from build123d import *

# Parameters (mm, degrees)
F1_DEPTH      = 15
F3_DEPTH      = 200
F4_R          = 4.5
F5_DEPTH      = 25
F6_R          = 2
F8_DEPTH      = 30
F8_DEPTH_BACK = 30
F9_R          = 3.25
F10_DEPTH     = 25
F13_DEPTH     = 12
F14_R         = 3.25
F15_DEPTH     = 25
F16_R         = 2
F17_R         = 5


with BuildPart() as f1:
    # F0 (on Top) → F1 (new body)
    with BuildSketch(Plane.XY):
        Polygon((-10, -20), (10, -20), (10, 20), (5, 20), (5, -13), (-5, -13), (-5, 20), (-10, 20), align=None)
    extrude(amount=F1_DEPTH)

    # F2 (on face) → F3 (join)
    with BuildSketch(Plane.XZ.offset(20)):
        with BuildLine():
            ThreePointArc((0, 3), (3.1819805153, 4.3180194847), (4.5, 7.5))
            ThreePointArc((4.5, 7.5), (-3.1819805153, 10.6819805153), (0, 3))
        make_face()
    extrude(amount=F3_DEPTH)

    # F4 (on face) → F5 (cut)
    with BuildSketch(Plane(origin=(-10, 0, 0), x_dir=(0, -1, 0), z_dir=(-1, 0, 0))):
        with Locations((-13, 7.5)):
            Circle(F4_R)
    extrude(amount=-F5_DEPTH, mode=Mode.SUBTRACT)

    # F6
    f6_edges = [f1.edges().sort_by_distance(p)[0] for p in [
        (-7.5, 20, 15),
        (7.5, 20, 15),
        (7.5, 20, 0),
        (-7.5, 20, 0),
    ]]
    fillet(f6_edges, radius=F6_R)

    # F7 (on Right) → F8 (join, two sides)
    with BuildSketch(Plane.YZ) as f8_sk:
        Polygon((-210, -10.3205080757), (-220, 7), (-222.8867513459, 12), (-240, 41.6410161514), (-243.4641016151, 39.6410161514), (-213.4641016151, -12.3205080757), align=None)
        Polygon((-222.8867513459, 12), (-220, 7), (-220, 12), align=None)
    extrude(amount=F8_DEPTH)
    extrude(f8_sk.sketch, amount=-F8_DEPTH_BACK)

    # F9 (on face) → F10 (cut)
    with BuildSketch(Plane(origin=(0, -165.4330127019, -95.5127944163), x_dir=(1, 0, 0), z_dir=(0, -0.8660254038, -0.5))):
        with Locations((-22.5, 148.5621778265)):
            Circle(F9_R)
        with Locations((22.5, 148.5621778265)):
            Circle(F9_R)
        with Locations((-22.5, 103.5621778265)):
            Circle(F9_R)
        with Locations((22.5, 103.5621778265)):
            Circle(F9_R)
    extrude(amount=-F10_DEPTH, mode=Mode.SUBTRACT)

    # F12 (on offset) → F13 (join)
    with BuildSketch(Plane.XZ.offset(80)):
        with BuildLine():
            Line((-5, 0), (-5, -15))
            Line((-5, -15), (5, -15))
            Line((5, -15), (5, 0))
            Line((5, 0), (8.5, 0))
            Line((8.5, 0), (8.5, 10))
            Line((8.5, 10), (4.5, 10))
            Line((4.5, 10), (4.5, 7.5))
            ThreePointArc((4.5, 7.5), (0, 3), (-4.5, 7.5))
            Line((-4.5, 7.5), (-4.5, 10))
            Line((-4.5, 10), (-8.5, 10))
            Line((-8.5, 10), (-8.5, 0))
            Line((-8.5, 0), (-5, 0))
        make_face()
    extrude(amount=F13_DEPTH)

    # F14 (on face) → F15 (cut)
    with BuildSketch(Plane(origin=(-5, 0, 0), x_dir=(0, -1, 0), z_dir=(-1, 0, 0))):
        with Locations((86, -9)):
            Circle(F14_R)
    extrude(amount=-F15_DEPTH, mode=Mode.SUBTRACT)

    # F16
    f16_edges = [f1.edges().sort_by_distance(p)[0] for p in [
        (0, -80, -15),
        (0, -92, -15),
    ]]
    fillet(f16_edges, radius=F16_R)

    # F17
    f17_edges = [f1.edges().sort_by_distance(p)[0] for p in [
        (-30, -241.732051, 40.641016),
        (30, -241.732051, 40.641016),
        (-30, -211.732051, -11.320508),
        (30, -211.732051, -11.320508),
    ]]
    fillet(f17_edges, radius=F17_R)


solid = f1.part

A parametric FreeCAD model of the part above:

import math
import FreeCAD as App
import Part
import Sketcher
from FreeCAD import Vector
Q = App.Units.Quantity


def edges_at(feature, points):
    """Names of the edges that pass closest to the given points."""
    edges = feature.Shape.Edges
    near = lambda p: min(range(len(edges)), key=lambda i: edges[i].distToShape(Part.Vertex(*p))[0])
    return sorted({f"Edge{near(p) + 1}" for p in points})


def add_polygon(sketch, points):
    """Adds a closed chain of lines whose ends are joined by coincident constraints."""
    first, n = sketch.GeometryCount, len(points)
    for a, b in zip(points, points[1:] + points[:1]):
        sketch.addGeometry(Part.LineSegment(App.Vector(*a, 0), App.Vector(*b, 0)), False)
    for i in range(n):
        sketch.addConstraint(Sketcher.Constraint("Coincident", first + i, 2, first + (i + 1) % n, 1))

doc = App.newDocument("Part")
body = doc.addObject("PartDesign::Body", "Body")

# Sketch on XY plane
sketch1 = body.newObject("Sketcher::SketchObject", "Sketch")
sketch1.AttachmentSupport = (doc.getObject("XY_Plane"), [""])
sketch1.MapMode = "FlatFace"
add_polygon(sketch1, [(-10, -20), (10, -20), (10, 20), (5, 20), (5, -13), (-5, -13), (-5, 20), (-10, 20)])  # lines 0-7
sketch1.addConstraint(Sketcher.Constraint("Horizontal", 0))
sketch1.addConstraint(Sketcher.Constraint("Vertical", 1))
sketch1.addConstraint(Sketcher.Constraint("Horizontal", 2))
sketch1.addConstraint(Sketcher.Constraint("Vertical", 3))
sketch1.addConstraint(Sketcher.Constraint("Horizontal", 4))
sketch1.addConstraint(Sketcher.Constraint("Vertical", 5))
sketch1.addConstraint(Sketcher.Constraint("Horizontal", 6))
sketch1.addConstraint(Sketcher.Constraint("Vertical", 7))
sketch1.addConstraint(Sketcher.Constraint("Symmetric", 0, 2, 6, 2, -1, 1))
sketch1.addConstraint(Sketcher.Constraint("Symmetric", 2, 2, 5, 2, -2))
sketch1.addConstraint(Sketcher.Constraint("DistanceX", 0, 1, 0, 2, 20.0))
sketch1.addConstraint(Sketcher.Constraint("DistanceX", 2, 2, 2, 1, 5.0))
sketch1.addConstraint(Sketcher.Constraint("DistanceY", 1, 1, 1, 2, 40.0))
sketch1.addConstraint(Sketcher.Constraint("DistanceY", 3, 2, 3, 1, 33.0))
pad1 = body.newObject("PartDesign::Pad", "Pad")
pad1.Profile = sketch1
pad1.Length = 15

# Sketch on XZ plane
sketch2 = body.newObject("Sketcher::SketchObject", "Sketch001")
sketch2.AttachmentSupport = (doc.getObject("XZ_Plane"), [""])
sketch2.MapMode = "FlatFace"
sketch2.AttachmentOffset = App.Placement(Vector(0, 0, 20), App.Rotation())
sketch2.addGeometry(Part.ArcOfCircle(Part.Circle(Vector(0, 7.5, 0), Vector(0, 0, 1), 4.5), math.radians(-90), math.radians(0)), False)
sketch2.addGeometry(Part.ArcOfCircle(Part.Circle(Vector(0, 7.5, 0), Vector(0, 0, 1), 4.5), math.radians(0), math.radians(270)), False)
sketch2.addConstraint(Sketcher.Constraint("Tangent", 0, 1, 1, 2))
sketch2.addConstraint(Sketcher.Constraint("Coincident", 1, 1, 0, 2))
sketch2.addConstraint(Sketcher.Constraint("PointOnObject", 0, 3, -2))
sketch2.addConstraint(Sketcher.Constraint("PointOnObject", 0, 1, -2))
sketch2.addConstraint(Sketcher.Constraint("Horizontal", 0, 3, 1, 1))
sketch2.addConstraint(Sketcher.Constraint("Radius", 0, 4.5))
sketch2.addConstraint(Sketcher.Constraint("DistanceY", -1, 1, 0, 1, 3.0))
pad2 = body.newObject("PartDesign::Pad", "Pad001")
pad2.Profile = sketch2
pad2.Length = 200

# Sketch on YZ plane
sketch3 = body.newObject("Sketcher::SketchObject", "Sketch002")
sketch3.AttachmentSupport = (doc.getObject("YZ_Plane"), [""])
sketch3.MapMode = "FlatFace"
sketch3.AttachmentOffset = App.Placement(Vector(0, 0, -10), App.Rotation())
sketch3.addGeometry(Part.Circle(Vector(13, 7.5, 0), Vector(0, 0, 1), 4.5), False)
sketch3.addConstraint(Sketcher.Constraint("Diameter", 0, 9.0))
sketch3.addConstraint(Sketcher.Constraint("DistanceX", -1, 1, 0, 3, 13.0))
sketch3.addConstraint(Sketcher.Constraint("DistanceY", -1, 1, 0, 3, 7.5))
pocket1 = body.newObject("PartDesign::Pocket", "Pocket")
pocket1.Profile = sketch3
pocket1.Length = 25
pocket1.Reversed = True
doc.recompute()

fillet = body.newObject("PartDesign::Fillet", "Fillet")
fillet.Base = (pocket1, edges_at(pocket1, [
    (-7.5, 20, 15),
    (7.5, 20, 15),
    (7.5, 20, 0),
    (-7.5, 20, 0),
]))
fillet.Radius = 2

# Sketch on YZ plane
sketch4 = body.newObject("Sketcher::SketchObject", "Sketch003")
sketch4.AttachmentSupport = (doc.getObject("YZ_Plane"), [""])
sketch4.MapMode = "FlatFace"
add_polygon(sketch4, [(-210, -10.3), (-220, 7), (-220, 12), (-222.9, 12), (-240, 41.6), (-243.5, 39.6), (-213.5, -12.3)])  # lines 0-6
sketch4.addConstraint(Sketcher.Constraint("Vertical", 1))
sketch4.addConstraint(Sketcher.Constraint("Horizontal", 2))
sketch4.addConstraint(Sketcher.Constraint("Parallel", 0, 3))
sketch4.addConstraint(Sketcher.Constraint("Perpendicular", 3, 4))
sketch4.addConstraint(Sketcher.Constraint("Perpendicular", 4, 5))
sketch4.addConstraint(Sketcher.Constraint("Perpendicular", 5, 6))
sketch4.addConstraint(Sketcher.Constraint("Equal", 4, 6))
sketch4.addConstraint(Sketcher.Constraint("DistanceY", 1, 1, 1, 2, 5.0))
sketch4.addConstraint(Sketcher.Constraint("Angle", 0, Q("120 deg")))
sketch4.addConstraint(Sketcher.Constraint("Distance", 0, 20.0))
sketch4.addConstraint(Sketcher.Constraint("Distance", 4, 4.0))
sketch4.addConstraint(Sketcher.Constraint("Distance", 5, 60.0))
sketch4.addConstraint(Sketcher.Constraint("DistanceX", 0, 2, -1, 1, 220.0))
sketch4.addConstraint(Sketcher.Constraint("DistanceY", -1, 1, 0, 2, 7.0))
pad3 = body.newObject("PartDesign::Pad", "Pad002")
pad3.Profile = sketch4
pad3.Type = "TwoLengths"
pad3.Length = 30
pad3.Length2 = 30

# Sketch on an angled plane
sketch5 = body.newObject("Sketcher::SketchObject", "Sketch004")
sketch5.Placement = App.Placement(Vector(0, -165.433013, -95.512794), App.Rotation(Vector(1, 0, 0), Vector(0, -0.5, 0.866025404), Vector(0, -0.866025404, -0.5), "ZXY"))
sketch5.addGeometry(Part.Circle(Vector(-22.5, 148.6, 0), Vector(0, 0, 1), 3.2), False)
sketch5.addGeometry(Part.Circle(Vector(22.5, 148.6, 0), Vector(0, 0, 1), 3.2), False)
sketch5.addGeometry(Part.Circle(Vector(-22.5, 103.6, 0), Vector(0, 0, 1), 3.2), False)
sketch5.addGeometry(Part.Circle(Vector(22.5, 103.6, 0), Vector(0, 0, 1), 3.2), False)
sketch5.addConstraint(Sketcher.Constraint("Equal", 0, 1))
sketch5.addConstraint(Sketcher.Constraint("Equal", 1, 2))
sketch5.addConstraint(Sketcher.Constraint("Equal", 2, 3))
sketch5.addConstraint(Sketcher.Constraint("Symmetric", 0, 3, 1, 3, -2))
sketch5.addConstraint(Sketcher.Constraint("Symmetric", 2, 3, 3, 3, -2))
sketch5.addConstraint(Sketcher.Constraint("Vertical", 0, 3, 2, 3))
sketch5.addConstraint(Sketcher.Constraint("Diameter", 0, 6.5))
sketch5.addConstraint(Sketcher.Constraint("DistanceX", 0, 3, 1, 3, 45.0))
sketch5.addConstraint(Sketcher.Constraint("DistanceY", 2, 3, 0, 3, 45.0))
sketch5.addConstraint(Sketcher.Constraint("DistanceY", -1, 1, 0, 3, 148.562178))
pocket2 = body.newObject("PartDesign::Pocket", "Pocket001")
pocket2.Profile = sketch5
pocket2.Length = 25

# Sketch on XZ plane
sketch6 = body.newObject("Sketcher::SketchObject", "Sketch005")
sketch6.AttachmentSupport = (doc.getObject("XZ_Plane"), [""])
sketch6.MapMode = "FlatFace"
sketch6.AttachmentOffset = App.Placement(Vector(0, 0, 80), App.Rotation())
sketch6.addGeometry(Part.LineSegment(Vector(-5, 0, 0), Vector(-5, -15, 0)), False)
sketch6.addGeometry(Part.LineSegment(Vector(-5, -15, 0), Vector(5, -15, 0)), False)
sketch6.addGeometry(Part.LineSegment(Vector(5, -15, 0), Vector(5, 0, 0)), False)
sketch6.addGeometry(Part.LineSegment(Vector(5, 0, 0), Vector(8.5, 0, 0)), False)
sketch6.addGeometry(Part.LineSegment(Vector(8.5, 0, 0), Vector(8.5, 10, 0)), False)
sketch6.addGeometry(Part.LineSegment(Vector(8.5, 10, 0), Vector(4.5, 10, 0)), False)
sketch6.addGeometry(Part.LineSegment(Vector(4.5, 10, 0), Vector(4.5, 7.5, 0)), False)
sketch6.addGeometry(Part.ArcOfCircle(Part.Circle(Vector(0, 7.5, 0), Vector(0, 0, 1), 4.5), math.radians(180), math.radians(360)), False)
sketch6.addGeometry(Part.LineSegment(Vector(-4.5, 7.5, 0), Vector(-4.5, 10, 0)), False)
sketch6.addGeometry(Part.LineSegment(Vector(-4.5, 10, 0), Vector(-8.5, 10, 0)), False)
sketch6.addGeometry(Part.LineSegment(Vector(-8.5, 10, 0), Vector(-8.5, 0, 0)), False)
sketch6.addGeometry(Part.LineSegment(Vector(-8.5, 0, 0), Vector(-5, 0, 0)), False)
sketch6.addConstraint(Sketcher.Constraint("Coincident", 0, 2, 1, 1))
sketch6.addConstraint(Sketcher.Constraint("Coincident", 1, 2, 2, 1))
sketch6.addConstraint(Sketcher.Constraint("Coincident", 2, 2, 3, 1))
sketch6.addConstraint(Sketcher.Constraint("Coincident", 3, 2, 4, 1))
sketch6.addConstraint(Sketcher.Constraint("Coincident", 4, 2, 5, 1))
sketch6.addConstraint(Sketcher.Constraint("Coincident", 5, 2, 6, 1))
sketch6.addConstraint(Sketcher.Constraint("Tangent", 6, 2, 7, 2))
sketch6.addConstraint(Sketcher.Constraint("Tangent", 7, 1, 8, 1))
sketch6.addConstraint(Sketcher.Constraint("Coincident", 8, 2, 9, 1))
sketch6.addConstraint(Sketcher.Constraint("Coincident", 9, 2, 10, 1))
sketch6.addConstraint(Sketcher.Constraint("Coincident", 10, 2, 11, 1))
sketch6.addConstraint(Sketcher.Constraint("Coincident", 11, 2, 0, 1))
sketch6.addConstraint(Sketcher.Constraint("Vertical", 0))
sketch6.addConstraint(Sketcher.Constraint("Horizontal", 1))
sketch6.addConstraint(Sketcher.Constraint("Vertical", 2))
sketch6.addConstraint(Sketcher.Constraint("Horizontal", 3))
sketch6.addConstraint(Sketcher.Constraint("Vertical", 4))
sketch6.addConstraint(Sketcher.Constraint("Horizontal", 5))
sketch6.addConstraint(Sketcher.Constraint("Vertical", 6))
sketch6.addConstraint(Sketcher.Constraint("Vertical", 8))
sketch6.addConstraint(Sketcher.Constraint("Horizontal", 9))
sketch6.addConstraint(Sketcher.Constraint("Vertical", 10))
sketch6.addConstraint(Sketcher.Constraint("Horizontal", 11))
sketch6.addConstraint(Sketcher.Constraint("Symmetric", 3, 2, 10, 2, -1, 1))
sketch6.addConstraint(Sketcher.Constraint("Symmetric", 5, 2, 8, 2, -2))
sketch6.addConstraint(Sketcher.Constraint("Symmetric", 2, 2, 11, 2, -2))
sketch6.addConstraint(Sketcher.Constraint("Equal", 1, 4))
sketch6.addConstraint(Sketcher.Constraint("Radius", 7, 4.5))
sketch6.addConstraint(Sketcher.Constraint("DistanceX", 1, 1, 1, 2, 10.0))
sketch6.addConstraint(Sketcher.Constraint("DistanceX", 5, 2, 5, 1, 4.0))
sketch6.addConstraint(Sketcher.Constraint("DistanceY", 0, 2, 0, 1, 15.0))
sketch6.addConstraint(Sketcher.Constraint("DistanceY", 6, 2, 6, 1, 2.5))
pad4 = body.newObject("PartDesign::Pad", "Pad003")
pad4.Profile = sketch6
pad4.Length = 12

# Sketch on YZ plane
sketch7 = body.newObject("Sketcher::SketchObject", "Sketch006")
sketch7.AttachmentSupport = (doc.getObject("YZ_Plane"), [""])
sketch7.MapMode = "FlatFace"
sketch7.AttachmentOffset = App.Placement(Vector(0, 0, -5), App.Rotation())
sketch7.addGeometry(Part.Circle(Vector(-86, -9, 0), Vector(0, 0, 1), 3.2), False)
sketch7.addConstraint(Sketcher.Constraint("Diameter", 0, 6.5))
sketch7.addConstraint(Sketcher.Constraint("DistanceX", 0, 3, -1, 1, 86.0))
sketch7.addConstraint(Sketcher.Constraint("DistanceY", 0, 3, -1, 1, 9.0))
pocket3 = body.newObject("PartDesign::Pocket", "Pocket002")
pocket3.Profile = sketch7
pocket3.Length = 25
pocket3.Reversed = True
doc.recompute()

fillet2 = body.newObject("PartDesign::Fillet", "Fillet001")
fillet2.Base = (pocket3, edges_at(pocket3, [(0, -80, -15), (0, -92, -15)]))
fillet2.Radius = 2
doc.recompute()

fillet3 = body.newObject("PartDesign::Fillet", "Fillet002")
fillet3.Base = (fillet2, edges_at(fillet2, [
    (-30, -241.732, 40.641),
    (30, -241.732, 40.641),
    (-30, -211.732, -11.321),
    (30, -211.732, -11.321),
]))
fillet3.Radius = 5

doc.recompute()
